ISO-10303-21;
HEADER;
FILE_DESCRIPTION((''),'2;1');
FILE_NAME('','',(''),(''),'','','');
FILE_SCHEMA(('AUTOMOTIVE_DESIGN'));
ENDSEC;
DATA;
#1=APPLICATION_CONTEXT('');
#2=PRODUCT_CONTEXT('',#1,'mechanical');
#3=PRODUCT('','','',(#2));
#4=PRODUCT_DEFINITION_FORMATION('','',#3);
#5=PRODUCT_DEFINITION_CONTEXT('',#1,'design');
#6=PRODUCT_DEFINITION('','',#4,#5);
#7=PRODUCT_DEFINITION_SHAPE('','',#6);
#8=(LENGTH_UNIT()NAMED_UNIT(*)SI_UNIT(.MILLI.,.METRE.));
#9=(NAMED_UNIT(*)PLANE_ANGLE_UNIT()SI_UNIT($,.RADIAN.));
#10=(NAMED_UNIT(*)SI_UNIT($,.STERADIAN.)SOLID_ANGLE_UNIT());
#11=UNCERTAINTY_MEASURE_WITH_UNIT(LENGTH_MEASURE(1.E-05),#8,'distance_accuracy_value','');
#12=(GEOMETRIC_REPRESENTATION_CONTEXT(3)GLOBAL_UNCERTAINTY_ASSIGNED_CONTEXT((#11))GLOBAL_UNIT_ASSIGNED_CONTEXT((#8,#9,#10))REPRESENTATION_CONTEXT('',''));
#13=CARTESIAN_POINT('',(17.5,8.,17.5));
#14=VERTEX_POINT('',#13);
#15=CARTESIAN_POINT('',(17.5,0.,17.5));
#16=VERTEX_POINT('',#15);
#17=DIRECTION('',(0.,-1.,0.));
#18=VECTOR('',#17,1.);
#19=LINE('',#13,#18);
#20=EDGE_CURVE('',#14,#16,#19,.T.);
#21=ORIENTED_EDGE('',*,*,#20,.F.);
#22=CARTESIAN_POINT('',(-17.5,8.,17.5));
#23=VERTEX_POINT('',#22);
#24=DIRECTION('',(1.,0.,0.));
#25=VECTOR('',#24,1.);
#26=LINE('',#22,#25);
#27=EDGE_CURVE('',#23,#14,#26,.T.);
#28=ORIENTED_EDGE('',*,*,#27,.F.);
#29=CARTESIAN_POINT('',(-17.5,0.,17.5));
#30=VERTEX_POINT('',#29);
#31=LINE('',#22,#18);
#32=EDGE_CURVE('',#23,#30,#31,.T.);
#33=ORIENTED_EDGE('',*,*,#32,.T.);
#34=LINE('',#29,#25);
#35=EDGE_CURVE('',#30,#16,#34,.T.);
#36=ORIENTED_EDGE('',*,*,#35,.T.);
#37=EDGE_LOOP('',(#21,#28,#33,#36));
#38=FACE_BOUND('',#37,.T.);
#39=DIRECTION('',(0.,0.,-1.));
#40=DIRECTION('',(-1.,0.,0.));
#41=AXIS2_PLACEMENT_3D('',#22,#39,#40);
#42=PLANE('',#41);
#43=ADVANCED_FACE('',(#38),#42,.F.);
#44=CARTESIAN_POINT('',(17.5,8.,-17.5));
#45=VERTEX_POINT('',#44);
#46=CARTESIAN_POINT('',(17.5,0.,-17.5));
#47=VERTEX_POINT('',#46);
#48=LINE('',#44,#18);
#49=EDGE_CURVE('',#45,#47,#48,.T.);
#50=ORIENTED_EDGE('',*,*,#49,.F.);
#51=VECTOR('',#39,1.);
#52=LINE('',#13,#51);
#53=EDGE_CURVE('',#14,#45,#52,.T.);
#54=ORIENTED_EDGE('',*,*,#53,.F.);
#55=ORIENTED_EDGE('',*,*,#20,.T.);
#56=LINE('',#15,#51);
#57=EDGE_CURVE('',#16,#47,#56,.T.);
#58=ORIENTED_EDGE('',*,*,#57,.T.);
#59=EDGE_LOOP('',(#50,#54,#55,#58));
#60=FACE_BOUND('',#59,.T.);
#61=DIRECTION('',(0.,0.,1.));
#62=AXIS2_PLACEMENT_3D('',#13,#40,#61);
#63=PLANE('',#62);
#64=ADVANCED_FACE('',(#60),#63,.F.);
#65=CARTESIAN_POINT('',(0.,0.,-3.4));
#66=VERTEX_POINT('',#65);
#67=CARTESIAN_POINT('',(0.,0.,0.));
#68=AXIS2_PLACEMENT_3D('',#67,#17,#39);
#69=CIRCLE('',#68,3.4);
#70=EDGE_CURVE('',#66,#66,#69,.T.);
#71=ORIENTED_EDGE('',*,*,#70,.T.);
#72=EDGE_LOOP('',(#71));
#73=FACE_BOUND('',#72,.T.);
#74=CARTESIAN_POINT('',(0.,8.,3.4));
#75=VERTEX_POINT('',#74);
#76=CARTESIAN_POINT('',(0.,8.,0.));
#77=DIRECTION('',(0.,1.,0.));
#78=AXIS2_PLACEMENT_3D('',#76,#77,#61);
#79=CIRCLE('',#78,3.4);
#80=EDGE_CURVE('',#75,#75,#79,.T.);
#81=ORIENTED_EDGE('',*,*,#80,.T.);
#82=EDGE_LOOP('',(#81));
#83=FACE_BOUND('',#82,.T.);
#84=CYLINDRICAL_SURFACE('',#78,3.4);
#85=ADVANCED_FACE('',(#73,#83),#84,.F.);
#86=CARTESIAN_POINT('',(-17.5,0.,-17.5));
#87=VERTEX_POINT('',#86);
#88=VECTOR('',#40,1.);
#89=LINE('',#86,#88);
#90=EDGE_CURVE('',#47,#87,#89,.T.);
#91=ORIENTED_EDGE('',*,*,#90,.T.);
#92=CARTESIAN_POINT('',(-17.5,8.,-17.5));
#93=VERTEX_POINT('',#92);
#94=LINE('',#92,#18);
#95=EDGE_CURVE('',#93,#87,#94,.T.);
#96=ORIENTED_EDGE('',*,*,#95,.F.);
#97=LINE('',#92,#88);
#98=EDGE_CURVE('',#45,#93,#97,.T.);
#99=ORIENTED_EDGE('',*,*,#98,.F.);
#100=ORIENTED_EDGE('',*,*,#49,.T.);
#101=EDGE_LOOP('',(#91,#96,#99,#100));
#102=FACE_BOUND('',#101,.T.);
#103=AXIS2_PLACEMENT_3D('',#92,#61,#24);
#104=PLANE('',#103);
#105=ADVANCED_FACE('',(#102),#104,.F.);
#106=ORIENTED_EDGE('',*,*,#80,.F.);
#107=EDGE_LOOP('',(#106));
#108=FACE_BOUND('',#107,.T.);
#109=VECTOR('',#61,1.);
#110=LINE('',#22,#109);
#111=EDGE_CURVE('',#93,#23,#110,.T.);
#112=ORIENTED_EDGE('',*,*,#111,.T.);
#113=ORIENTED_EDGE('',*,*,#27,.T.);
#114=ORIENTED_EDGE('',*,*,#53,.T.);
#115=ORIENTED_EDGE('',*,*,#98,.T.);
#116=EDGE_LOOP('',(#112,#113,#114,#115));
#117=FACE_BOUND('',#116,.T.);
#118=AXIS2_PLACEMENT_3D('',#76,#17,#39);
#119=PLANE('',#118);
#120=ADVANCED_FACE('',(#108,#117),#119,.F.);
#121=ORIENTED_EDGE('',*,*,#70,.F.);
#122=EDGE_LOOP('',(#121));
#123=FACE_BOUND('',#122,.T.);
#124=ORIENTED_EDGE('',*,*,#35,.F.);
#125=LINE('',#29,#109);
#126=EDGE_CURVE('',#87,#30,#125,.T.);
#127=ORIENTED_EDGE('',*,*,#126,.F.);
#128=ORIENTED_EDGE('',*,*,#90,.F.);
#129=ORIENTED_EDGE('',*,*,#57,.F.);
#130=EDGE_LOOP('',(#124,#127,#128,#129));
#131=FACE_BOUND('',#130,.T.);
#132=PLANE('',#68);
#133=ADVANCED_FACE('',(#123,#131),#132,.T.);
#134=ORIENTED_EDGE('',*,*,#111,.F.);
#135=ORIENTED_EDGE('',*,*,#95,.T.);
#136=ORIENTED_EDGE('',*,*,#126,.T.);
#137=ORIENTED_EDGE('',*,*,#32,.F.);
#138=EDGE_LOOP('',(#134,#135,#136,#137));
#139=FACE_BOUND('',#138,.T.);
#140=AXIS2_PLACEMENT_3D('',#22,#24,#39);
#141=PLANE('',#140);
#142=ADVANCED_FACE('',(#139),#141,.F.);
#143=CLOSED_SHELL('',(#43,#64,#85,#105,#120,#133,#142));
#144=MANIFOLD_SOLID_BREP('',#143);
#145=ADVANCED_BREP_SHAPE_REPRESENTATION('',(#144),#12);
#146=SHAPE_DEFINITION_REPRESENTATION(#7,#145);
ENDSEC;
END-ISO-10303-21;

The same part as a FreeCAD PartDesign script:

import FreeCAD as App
import Part
import Sketcher

V = App.Vector

doc = App.newDocument("Part")
params = doc.addObject("Spreadsheet::Sheet", "Params")
for row, (alias, value) in enumerate([
    ("sketch1_width", "35 mm"),
    ("pad1_length", "8 mm"),
    ("sketch2_diameter", "6.8 mm"),
    ("hole_diameter", "6.8 mm"),
], start=1):
    params.set(f"A{row}", alias)
    params.set(f"B{row}", "=" + value)
    params.setAlias(f"B{row}", alias)

body = doc.addObject("PartDesign::Body", "Body")

# Sketch on XZ plane
sketch1 = body.newObject("Sketcher::SketchObject", "Sketch")
sketch1.AttachmentSupport = (doc.getObject("XZ_Plane"), [""])
sketch1.MapMode = "FlatFace"
sketch1.addGeometry([
    Part.LineSegment(V(-18, -18, 0), V(-18, 18, 0)),
    Part.LineSegment(V(-18, 18, 0), V(18, 18, 0)),
    Part.LineSegment(V(18, 18, 0), V(18, -18, 0)),
    Part.LineSegment(V(18, -18, 0), V(-18, -18, 0)),
], False)
sketch1.addConstraint([
    Sketcher.Constraint("Coincident", 0, 2, 1, 1),
    Sketcher.Constraint("Coincident", 1, 2, 2, 1),
    Sketcher.Constraint("Coincident", 2, 2, 3, 1),
    Sketcher.Constraint("Coincident", 3, 2, 0, 1),
    Sketcher.Constraint("Vertical", 0),
    Sketcher.Constraint("Horizontal", 1),
    Sketcher.Constraint("Vertical", 2),
    Sketcher.Constraint("Horizontal", 3),
    Sketcher.Constraint("Symmetric", 0, 2, 2, 2, -1, 1),
    Sketcher.Constraint("Equal", 3, 0),
    Sketcher.Constraint("DistanceX", 1, 1, 1, 2, 35.0),
])
sketch1.setExpression("Constraints[10]", "Params.sketch1_width")
pad1 = body.newObject("PartDesign::Pad", "Pad")
pad1.Profile = sketch1
pad1.setExpression("Length", "Params.pad1_length")
pad1.Reversed = True

# Sketch on XZ plane
sketch2 = body.newObject("Sketcher::SketchObject", "Sketch001")
sketch2.AttachmentSupport = (doc.getObject("XZ_Plane"), [""])
sketch2.MapMode = "FlatFace"
sketch2.AttachmentOffset = App.Placement(V(0, 0, -8), App.Rotation())
sketch2.addGeometry(Part.Circle(V(0, 0, 0), V(0, 0, 1), 3.4), False)
sketch2.addConstraint([
    Sketcher.Constraint("Coincident", 0, 3, -1, 1),
    Sketcher.Constraint("Diameter", 0, 6.8),
])
sketch2.setExpression("Constraints[1]", "Params.sketch2_diameter")
doc.recompute()
hole = body.newObject("PartDesign::Hole", "Hole")
hole.Profile = sketch2
hole.ThreadType = "None"
hole.setExpression("Diameter", "Params.hole_diameter")
hole.DepthType = "ThroughAll"
hole.Reversed = True

doc.recompute()
